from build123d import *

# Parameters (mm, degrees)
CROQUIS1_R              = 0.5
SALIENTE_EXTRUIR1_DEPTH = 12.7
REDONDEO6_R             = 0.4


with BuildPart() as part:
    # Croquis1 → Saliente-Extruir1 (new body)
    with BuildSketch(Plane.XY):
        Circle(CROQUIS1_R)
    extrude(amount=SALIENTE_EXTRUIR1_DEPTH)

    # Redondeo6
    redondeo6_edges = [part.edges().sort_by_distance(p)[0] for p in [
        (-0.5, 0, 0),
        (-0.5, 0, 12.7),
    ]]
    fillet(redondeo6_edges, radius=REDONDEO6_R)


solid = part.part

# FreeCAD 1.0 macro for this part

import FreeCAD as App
import Part
import Sketcher
Q = App.Units.Quantity


def edges_at(feature, points):
    """Names of the edges that pass closest to the given points."""
    edges = feature.Shape.Edges
    near = lambda p: min(range(len(edges)), key=lambda i: edges[i].distToShape(Part.Vertex(*p))[0])
    return sorted({f"Edge{near(p) + 1}" for p in points})

doc = App.newDocument("Part")
body = doc.addObject("PartDesign::Body", "Body")

# Sketch on XY plane
sketch1 = doc.addObject("Sketcher::SketchObject", "Sketch")
body.addObject(sketch1)
sketch1.AttachmentSupport = (doc.XY_Plane, [""])
sketch1.MapMode = "FlatFace"
sketch1.addGeometry(Part.Circle(App.Vector(0, 0, 0), App.Vector(0, 0, 1), 0.5), False)
sketch1.addConstraint([
    Sketcher.Constraint("Coincident", 0, 3, -1, 1),
    Sketcher.Constraint("Diameter", 0, Q("1 mm")),
])
pad1 = doc.addObject("PartDesign::Pad", "Pad")
body.addObject(pad1)
pad1.Profile = sketch1
pad1.Length = 12.7
doc.recompute()

fillet = doc.addObject("PartDesign::Fillet", "Fillet")
body.addObject(fillet)
fillet.Base = (pad1, edges_at(pad1, [(-0.5, 0, 0), (-0.5, 0, 12.7)]))
fillet.Radius = 0.4

doc.recompute()
